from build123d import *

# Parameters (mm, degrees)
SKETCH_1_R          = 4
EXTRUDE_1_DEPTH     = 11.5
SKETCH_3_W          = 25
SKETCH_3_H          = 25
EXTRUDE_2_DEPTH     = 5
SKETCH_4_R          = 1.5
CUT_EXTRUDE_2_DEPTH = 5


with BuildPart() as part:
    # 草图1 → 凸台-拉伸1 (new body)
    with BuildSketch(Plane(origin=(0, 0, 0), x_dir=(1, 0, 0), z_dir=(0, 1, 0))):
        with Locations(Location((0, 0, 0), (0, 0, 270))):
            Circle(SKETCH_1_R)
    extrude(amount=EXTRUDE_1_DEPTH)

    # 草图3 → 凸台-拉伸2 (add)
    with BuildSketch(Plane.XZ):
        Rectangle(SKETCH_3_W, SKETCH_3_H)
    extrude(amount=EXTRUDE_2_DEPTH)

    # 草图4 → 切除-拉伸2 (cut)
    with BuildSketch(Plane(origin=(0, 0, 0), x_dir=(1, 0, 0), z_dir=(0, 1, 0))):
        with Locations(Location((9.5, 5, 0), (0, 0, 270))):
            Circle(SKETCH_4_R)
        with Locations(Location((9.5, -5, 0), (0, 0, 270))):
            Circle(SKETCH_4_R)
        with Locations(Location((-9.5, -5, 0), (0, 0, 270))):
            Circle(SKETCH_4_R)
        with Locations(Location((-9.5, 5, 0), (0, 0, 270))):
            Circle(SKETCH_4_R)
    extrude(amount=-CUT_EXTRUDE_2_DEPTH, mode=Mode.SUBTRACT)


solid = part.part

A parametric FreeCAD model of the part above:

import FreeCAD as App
import Part
import Sketcher
from FreeCAD import Vector

doc = App.newDocument("Part")
body = doc.addObject("PartDesign::Body", "Body")

sketch1 = body.newObject("Sketcher::SketchObject", "Sketch")
sketch1.AttachmentSupport = (doc.getObject("XZ_Plane"), [""])
sketch1.MapMode = "FlatFace"
sketch1.addGeometry(Part.Circle(Vector(0, 0, 0), Vector(0, 0, 1), 4), False)
sketch1.addConstraint(Sketcher.Constraint("Coincident", 0, 3, -1, 1))
sketch1.addConstraint(Sketcher.Constraint("Diameter", 0, 8.0))
pad1 = body.newObject("PartDesign::Pad", "Pad")
pad1.Profile = sketch1
pad1.Length = 11.5
pad1.Reversed = True

sketch2 = body.newObject("Sketcher::SketchObject", "Sketch001")
sketch2.AttachmentSupport = (doc.getObject("XZ_Plane"), [""])
sketch2.MapMode = "FlatFace"
sketch2.addGeometry(Part.LineSegment(Vector(-12, 12, 0), Vector(-12, -12, 0)), False)
sketch2.addGeometry(Part.LineSegment(Vector(-12, -12, 0), Vector(12, -12, 0)), False)
sketch2.addGeometry(Part.LineSegment(Vector(12, -12, 0), Vector(12, 12, 0)), False)
sketch2.addGeometry(Part.LineSegment(Vector(12, 12, 0), Vector(-12, 12, 0)), False)
sketch2.addConstraint(Sketcher.Constraint("Coincident", 0, 2, 1, 1))
sketch2.addConstraint(Sketcher.Constraint("Coincident", 1, 2, 2, 1))
sketch2.addConstraint(Sketcher.Constraint("Coincident", 2, 2, 3, 1))
sketch2.addConstraint(Sketcher.Constraint("Coincident", 3, 2, 0, 1))
sketch2.addConstraint(Sketcher.Constraint("Vertical", 0))
sketch2.addConstraint(Sketcher.Constraint("Horizontal", 1))
sketch2.addConstraint(Sketcher.Constraint("Vertical", 2))
sketch2.addConstraint(Sketcher.Constraint("Horizontal", 3))
sketch2.addConstraint(Sketcher.Constraint("Symmetric", 0, 2, 2, 2, -1, 1))
sketch2.addConstraint(Sketcher.Constraint("Equal", 3, 0))
sketch2.addConstraint(Sketcher.Constraint("DistanceX", 1, 1, 1, 2, 25.0))
pad2 = body.newObject("PartDesign::Pad", "Pad001")
pad2.Profile = sketch2
pad2.Length = 5

sketch3 = body.newObject("Sketcher::SketchObject", "Sketch002")
sketch3.AttachmentSupport = (doc.getObject("XZ_Plane"), [""])
sketch3.MapMode = "FlatFace"
sketch3.addGeometry(Part.Circle(Vector(9.5, -5, 0), Vector(0, 0, 1), 1.5), False)
sketch3.addGeometry(Part.Circle(Vector(9.5, 5, 0), Vector(0, 0, 1), 1.5), False)
sketch3.addGeometry(Part.Circle(Vector(-9.5, 5, 0), Vector(0, 0, 1), 1.5), False)
sketch3.addGeometry(Part.Circle(Vector(-9.5, -5, 0), Vector(0, 0, 1), 1.5), False)
sketch3.addConstraint(Sketcher.Constraint("Equal", 0, 1))
sketch3.addConstraint(Sketcher.Constraint("Equal", 1, 2))
sketch3.addConstraint(Sketcher.Constraint("Equal", 2, 3))
sketch3.addConstraint(Sketcher.Constraint("Symmetric", 0, 3, 2, 3, -1, 1))
sketch3.addConstraint(Sketcher.Constraint("Symmetric", 1, 3, 3, 3, -1, 1))
sketch3.addConstraint(Sketcher.Constraint("Symmetric", 1, 3, 2, 3, -2))
sketch3.addConstraint(Sketcher.Constraint("Diameter", 0, 3.0))
sketch3.addConstraint(Sketcher.Constraint("DistanceY", 0, 3, -1, 1, 5.0))
sketch3.addConstraint(Sketcher.Constraint("DistanceX", 2, 3, 1, 3, 19.0))
pocket1 = body.newObject("PartDesign::Pocket", "Pocket")
pocket1.Profile = sketch3
pocket1.Length = 5
pocket1.Reversed = True

doc.recompute()
